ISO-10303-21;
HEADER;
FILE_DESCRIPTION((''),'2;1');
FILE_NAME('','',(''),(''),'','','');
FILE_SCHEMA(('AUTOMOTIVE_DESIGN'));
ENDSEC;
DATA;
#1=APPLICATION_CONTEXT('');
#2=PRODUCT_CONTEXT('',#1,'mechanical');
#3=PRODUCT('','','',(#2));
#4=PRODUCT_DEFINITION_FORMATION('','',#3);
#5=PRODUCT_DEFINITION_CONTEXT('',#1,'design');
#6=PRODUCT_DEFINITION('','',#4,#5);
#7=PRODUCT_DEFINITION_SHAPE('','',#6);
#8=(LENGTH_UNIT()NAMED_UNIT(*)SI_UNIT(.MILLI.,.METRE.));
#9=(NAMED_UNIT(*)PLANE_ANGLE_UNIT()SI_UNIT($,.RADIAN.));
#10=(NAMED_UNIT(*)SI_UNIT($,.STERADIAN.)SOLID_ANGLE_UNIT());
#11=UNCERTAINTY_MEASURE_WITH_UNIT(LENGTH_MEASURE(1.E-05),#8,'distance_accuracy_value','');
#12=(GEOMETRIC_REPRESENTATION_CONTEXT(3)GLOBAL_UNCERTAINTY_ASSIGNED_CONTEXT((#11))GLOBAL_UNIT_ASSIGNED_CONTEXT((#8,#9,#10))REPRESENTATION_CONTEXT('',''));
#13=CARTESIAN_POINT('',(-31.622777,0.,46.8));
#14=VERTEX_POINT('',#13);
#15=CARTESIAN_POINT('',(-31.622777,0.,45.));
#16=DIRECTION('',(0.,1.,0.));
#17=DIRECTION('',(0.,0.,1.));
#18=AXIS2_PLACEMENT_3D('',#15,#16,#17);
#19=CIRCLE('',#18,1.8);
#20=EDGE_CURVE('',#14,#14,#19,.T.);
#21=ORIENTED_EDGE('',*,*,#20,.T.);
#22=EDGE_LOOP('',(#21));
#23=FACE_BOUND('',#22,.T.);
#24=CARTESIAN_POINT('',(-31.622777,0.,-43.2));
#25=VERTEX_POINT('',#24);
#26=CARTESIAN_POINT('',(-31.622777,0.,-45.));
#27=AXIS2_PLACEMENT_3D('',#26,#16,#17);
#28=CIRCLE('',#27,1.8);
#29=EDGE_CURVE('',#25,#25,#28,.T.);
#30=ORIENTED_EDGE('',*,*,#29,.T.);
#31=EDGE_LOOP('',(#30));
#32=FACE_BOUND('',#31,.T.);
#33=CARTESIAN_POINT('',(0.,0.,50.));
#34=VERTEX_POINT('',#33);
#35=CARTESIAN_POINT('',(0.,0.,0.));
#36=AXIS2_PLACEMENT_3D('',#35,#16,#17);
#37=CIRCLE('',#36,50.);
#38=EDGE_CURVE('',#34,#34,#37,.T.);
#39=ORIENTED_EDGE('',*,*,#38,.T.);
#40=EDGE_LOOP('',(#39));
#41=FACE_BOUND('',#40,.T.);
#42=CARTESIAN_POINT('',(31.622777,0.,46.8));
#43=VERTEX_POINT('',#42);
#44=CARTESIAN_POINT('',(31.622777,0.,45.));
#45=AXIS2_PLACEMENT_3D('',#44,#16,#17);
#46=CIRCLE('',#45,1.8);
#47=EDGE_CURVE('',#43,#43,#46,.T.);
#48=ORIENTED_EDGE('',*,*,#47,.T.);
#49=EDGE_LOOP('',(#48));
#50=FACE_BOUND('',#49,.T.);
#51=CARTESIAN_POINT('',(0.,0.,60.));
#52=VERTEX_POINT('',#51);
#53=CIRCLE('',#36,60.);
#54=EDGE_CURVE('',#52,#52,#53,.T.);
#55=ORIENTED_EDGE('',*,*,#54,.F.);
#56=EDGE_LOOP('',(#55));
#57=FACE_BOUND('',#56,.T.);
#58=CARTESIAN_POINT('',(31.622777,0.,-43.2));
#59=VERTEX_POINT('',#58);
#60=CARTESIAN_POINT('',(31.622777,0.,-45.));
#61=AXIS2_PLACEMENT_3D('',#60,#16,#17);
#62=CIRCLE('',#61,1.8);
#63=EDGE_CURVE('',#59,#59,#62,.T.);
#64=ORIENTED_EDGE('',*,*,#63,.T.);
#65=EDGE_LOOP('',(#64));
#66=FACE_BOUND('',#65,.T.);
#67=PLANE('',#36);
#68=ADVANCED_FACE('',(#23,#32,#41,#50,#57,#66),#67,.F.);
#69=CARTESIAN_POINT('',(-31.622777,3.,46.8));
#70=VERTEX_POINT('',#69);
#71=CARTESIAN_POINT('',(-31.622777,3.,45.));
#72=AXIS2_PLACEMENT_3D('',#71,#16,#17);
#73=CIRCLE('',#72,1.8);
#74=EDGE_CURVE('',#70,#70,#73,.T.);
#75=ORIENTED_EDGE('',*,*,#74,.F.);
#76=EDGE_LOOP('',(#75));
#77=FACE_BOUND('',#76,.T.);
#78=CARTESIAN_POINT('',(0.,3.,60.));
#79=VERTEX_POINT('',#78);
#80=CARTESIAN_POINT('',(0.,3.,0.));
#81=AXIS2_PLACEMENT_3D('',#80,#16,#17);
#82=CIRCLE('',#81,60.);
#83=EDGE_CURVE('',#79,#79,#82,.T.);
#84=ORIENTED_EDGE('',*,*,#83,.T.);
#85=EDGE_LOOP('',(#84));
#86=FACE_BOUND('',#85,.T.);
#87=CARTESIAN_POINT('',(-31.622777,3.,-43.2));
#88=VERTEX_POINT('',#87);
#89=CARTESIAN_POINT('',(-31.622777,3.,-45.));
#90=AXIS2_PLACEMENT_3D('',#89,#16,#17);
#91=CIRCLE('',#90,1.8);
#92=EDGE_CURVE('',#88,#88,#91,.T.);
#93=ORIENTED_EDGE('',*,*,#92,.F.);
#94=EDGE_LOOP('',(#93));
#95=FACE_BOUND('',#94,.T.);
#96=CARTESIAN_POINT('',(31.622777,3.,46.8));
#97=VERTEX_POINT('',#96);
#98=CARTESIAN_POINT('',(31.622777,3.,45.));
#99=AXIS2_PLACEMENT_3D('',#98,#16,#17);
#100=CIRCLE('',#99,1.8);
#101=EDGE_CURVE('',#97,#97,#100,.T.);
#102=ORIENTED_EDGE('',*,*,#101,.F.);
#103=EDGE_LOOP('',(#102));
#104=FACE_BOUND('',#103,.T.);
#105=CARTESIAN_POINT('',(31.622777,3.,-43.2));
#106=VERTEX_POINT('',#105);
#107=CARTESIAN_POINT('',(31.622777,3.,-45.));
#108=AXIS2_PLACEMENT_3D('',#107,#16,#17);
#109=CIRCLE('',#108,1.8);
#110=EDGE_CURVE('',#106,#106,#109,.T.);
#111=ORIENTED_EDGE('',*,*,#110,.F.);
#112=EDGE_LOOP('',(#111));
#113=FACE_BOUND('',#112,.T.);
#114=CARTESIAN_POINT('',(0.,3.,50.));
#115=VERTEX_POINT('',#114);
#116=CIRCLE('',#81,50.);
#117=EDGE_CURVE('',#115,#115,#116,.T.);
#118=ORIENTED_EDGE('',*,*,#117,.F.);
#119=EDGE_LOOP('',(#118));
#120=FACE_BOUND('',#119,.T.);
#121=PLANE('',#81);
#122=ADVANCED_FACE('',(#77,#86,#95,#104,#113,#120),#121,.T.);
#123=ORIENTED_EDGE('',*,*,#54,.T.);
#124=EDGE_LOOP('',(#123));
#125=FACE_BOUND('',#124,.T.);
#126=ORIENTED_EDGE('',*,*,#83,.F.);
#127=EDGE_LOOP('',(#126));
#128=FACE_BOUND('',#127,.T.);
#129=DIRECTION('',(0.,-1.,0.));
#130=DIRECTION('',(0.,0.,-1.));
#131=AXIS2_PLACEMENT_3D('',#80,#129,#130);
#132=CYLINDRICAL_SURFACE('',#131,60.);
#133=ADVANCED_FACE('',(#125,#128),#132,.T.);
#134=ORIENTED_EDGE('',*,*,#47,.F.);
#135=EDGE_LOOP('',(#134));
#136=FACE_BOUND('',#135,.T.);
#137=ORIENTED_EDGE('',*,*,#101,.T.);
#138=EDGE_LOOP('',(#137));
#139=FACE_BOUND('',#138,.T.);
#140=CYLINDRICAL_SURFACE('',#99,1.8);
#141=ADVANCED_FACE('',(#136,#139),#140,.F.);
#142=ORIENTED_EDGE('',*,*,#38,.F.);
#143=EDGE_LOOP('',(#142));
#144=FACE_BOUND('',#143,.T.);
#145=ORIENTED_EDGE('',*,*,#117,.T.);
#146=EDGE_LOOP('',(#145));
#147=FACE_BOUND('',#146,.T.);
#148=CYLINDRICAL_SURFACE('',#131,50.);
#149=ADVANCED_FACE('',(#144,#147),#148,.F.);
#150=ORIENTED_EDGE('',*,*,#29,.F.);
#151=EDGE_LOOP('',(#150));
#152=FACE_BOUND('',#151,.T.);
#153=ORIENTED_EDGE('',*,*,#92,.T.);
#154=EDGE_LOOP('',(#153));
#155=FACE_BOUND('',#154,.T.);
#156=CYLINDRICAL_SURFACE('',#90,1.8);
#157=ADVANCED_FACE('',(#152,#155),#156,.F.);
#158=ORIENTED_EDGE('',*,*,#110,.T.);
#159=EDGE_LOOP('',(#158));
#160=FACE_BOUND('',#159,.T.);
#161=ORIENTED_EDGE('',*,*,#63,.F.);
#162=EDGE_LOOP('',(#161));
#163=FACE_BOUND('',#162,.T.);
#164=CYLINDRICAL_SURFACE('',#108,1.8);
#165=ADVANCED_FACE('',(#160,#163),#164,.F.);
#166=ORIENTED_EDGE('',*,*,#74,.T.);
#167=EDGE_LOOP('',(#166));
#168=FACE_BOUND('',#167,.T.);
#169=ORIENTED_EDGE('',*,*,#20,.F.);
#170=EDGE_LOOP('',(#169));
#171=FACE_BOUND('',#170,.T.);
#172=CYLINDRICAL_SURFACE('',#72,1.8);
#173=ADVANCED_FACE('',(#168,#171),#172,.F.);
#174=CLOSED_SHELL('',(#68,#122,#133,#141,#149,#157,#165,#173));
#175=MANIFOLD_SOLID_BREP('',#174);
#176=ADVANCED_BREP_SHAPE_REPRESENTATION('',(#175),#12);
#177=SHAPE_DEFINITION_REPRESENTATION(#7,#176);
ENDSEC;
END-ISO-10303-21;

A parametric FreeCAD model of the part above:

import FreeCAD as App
import Part
import Sketcher

V = App.Vector
Q = App.Units.Quantity

doc = App.newDocument("Part")
body = doc.addObject("PartDesign::Body", "Body")

# Sketch on XZ plane
sketch1 = body.newObject("Sketcher::SketchObject", "Sketch")
sketch1.AttachmentSupport = (doc.getObject("XZ_Plane"), [""])
sketch1.MapMode = "FlatFace"
sketch1.addGeometry([
    Part.Circle(V(0, 0, 0), V(0, 0, 1), 60),
    Part.Circle(V(0, 0, 0), V(0, 0, 1), 50),
], False)
sketch1.addConstraint([
    Sketcher.Constraint("Coincident", 0, 3, -1, 1),
    Sketcher.Constraint("Coincident", 1, 3, -1, 1),
    Sketcher.Constraint("Diameter", 0, Q("120 mm")),
    Sketcher.Constraint("Diameter", 1, Q("100 mm")),
])
pad1 = body.newObject("PartDesign::Pad", "Pad")
pad1.Profile = sketch1
pad1.Length = 3
pad1.Reversed = True

# Sketch on XZ plane
sketch2 = body.newObject("Sketcher::SketchObject", "Sketch001")
sketch2.AttachmentSupport = (doc.getObject("XZ_Plane"), [""])
sketch2.MapMode = "FlatFace"
sketch2.AttachmentOffset = App.Placement(V(0, 0, -3), App.Rotation())
sketch2.addGeometry([
    Part.Circle(V(-31.622777, -45, 0), V(0, 0, 1), 1.8),
    Part.Circle(V(31.622777, -45, 0), V(0, 0, 1), 1.8),
], False)
sketch2.addConstraint([
    Sketcher.Constraint("Equal", 0, 1),
    Sketcher.Constraint("Symmetric", 0, 3, 1, 3, -2),
    Sketcher.Constraint("Diameter", 0, Q("3.6 mm")),
    Sketcher.Constraint("DistanceY", 0, 3, -1, 1, Q("45 mm")),
    Sketcher.Constraint("DistanceX", 0, 3, -1, 1, Q("31.622777 mm")),
])
doc.recompute()
hole = body.newObject("PartDesign::Hole", "Hole")
hole.Profile = sketch2
hole.ThreadType = "None"
hole.Diameter = 3.6
hole.DepthType = "ThroughAll"
hole.Reversed = True
doc.recompute()

mirrored = body.newObject("PartDesign::Mirrored", "Mirrored")
mirrored.Originals = [hole]
mirrored.MirrorPlane = (doc.getObject("XY_Plane"), [""])
body.Tip = mirrored

doc.recompute()
